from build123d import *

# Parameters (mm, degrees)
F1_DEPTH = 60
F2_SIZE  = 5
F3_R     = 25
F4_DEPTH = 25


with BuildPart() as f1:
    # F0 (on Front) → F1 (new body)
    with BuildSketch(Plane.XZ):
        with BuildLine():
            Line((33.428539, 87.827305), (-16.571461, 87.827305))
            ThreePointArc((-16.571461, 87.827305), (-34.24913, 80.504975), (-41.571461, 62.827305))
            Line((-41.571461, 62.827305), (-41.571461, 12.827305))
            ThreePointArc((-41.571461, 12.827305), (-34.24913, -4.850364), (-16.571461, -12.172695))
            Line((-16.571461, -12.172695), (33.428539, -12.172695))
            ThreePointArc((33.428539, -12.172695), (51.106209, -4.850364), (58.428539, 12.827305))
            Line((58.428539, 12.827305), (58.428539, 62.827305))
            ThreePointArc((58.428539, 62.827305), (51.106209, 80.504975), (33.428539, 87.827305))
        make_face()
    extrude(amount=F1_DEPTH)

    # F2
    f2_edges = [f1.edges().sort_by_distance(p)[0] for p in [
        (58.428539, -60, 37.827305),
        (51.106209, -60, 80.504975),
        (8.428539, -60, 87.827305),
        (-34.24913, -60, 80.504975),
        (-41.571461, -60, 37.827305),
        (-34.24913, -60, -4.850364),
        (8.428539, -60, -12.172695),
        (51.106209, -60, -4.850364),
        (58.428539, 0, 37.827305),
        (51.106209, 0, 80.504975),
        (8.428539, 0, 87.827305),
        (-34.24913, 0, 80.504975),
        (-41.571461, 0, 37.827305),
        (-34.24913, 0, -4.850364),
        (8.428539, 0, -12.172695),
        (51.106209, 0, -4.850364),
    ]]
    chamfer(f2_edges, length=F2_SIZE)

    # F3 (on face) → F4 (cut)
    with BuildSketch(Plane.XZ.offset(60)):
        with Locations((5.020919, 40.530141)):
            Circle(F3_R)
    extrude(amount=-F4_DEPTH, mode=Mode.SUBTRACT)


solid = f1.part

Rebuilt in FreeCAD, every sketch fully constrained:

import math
import FreeCAD as App
import Part
import Sketcher
from FreeCAD import Vector


def edges_at(feature, points):
    """Names of the edges that pass closest to the given points."""
    edges = feature.Shape.Edges
    near = lambda p: min(range(len(edges)), key=lambda i: edges[i].distToShape(Part.Vertex(*p))[0])
    return sorted({f"Edge{near(p) + 1}" for p in points})

doc = App.newDocument("Part")
body = doc.addObject("PartDesign::Body", "Body")

sketch1 = doc.addObject("Sketcher::SketchObject", "Sketch")
body.addObject(sketch1)
sketch1.AttachmentSupport = (doc.XZ_Plane, [""])
sketch1.MapMode = "FlatFace"
sketch1.addGeometry([
    Part.LineSegment(Vector(33, 88, 0), Vector(-17, 88, 0)),
    Part.ArcOfCircle(Part.Circle(Vector(-17, 63, 0), Vector(0, 0, 1), 25), math.radians(90), math.radians(180)),
    Part.LineSegment(Vector(-42, 63, 0), Vector(-42, 13, 0)),
    Part.ArcOfCircle(Part.Circle(Vector(-17, 13, 0), Vector(0, 0, 1), 25), math.radians(-180), math.radians(-90)),
    Part.LineSegment(Vector(-17, -12, 0), Vector(33, -12, 0)),
    Part.ArcOfCircle(Part.Circle(Vector(33, 13, 0), Vector(0, 0, 1), 25), math.radians(-90), math.radians(0)),
    Part.LineSegment(Vector(58, 13, 0), Vector(58, 63, 0)),
    Part.ArcOfCircle(Part.Circle(Vector(33, 63, 0), Vector(0, 0, 1), 25), math.radians(0), math.radians(90)),
], False)
sketch1.addConstraint([
    Sketcher.Constraint("Tangent", 0, 2, 1, 1),
    Sketcher.Constraint("Tangent", 1, 2, 2, 1),
    Sketcher.Constraint("Tangent", 2, 2, 3, 1),
    Sketcher.Constraint("Tangent", 3, 2, 4, 1),
    Sketcher.Constraint("Tangent", 4, 2, 5, 1),
    Sketcher.Constraint("Tangent", 5, 2, 6, 1),
    Sketcher.Constraint("Tangent", 6, 2, 7, 1),
    Sketcher.Constraint("Tangent", 7, 2, 0, 1),
    Sketcher.Constraint("Horizontal", 0),
    Sketcher.Constraint("Vertical", 2),
    Sketcher.Constraint("Horizontal", 4),
    Sketcher.Constraint("Vertical", 6),
    Sketcher.Constraint("Equal", 1, 3),
    Sketcher.Constraint("Equal", 3, 5),
    Sketcher.Constraint("Equal", 5, 7),
    Sketcher.Constraint("Equal", 4, 2),
    Sketcher.Constraint("Radius", 1, 25.0),
    Sketcher.Constraint("DistanceX", 0, 2, 0, 1, 50.0),
    Sketcher.Constraint("DistanceX", 1, 3, -1, 1, 16.571461),
    Sketcher.Constraint("DistanceY", -1, 1, 1, 3, 62.827305),
])
pad1 = doc.addObject("PartDesign::Pad", "Pad")
body.addObject(pad1)
pad1.Profile = sketch1
pad1.Length = 60
doc.recompute()

chamfer = doc.addObject("PartDesign::Chamfer", "Chamfer")
body.addObject(chamfer)
chamfer.Base = (pad1, edges_at(pad1, [
    (58.429, -60, 37.827),
    (51.106, -60, 80.505),
    (8.429, -60, 87.827),
    (-34.249, -60, 80.505),
    (-41.571, -60, 37.827),
    (-34.249, -60, -4.85),
    (8.429, -60, -12.173),
    (51.106, -60, -4.85),
    (58.429, 0, 37.827),
    (51.106, 0, 80.505),
    (8.429, 0, 87.827),
    (-34.249, 0, 80.505),
    (-41.571, 0, 37.827),
    (-34.249, 0, -4.85),
    (8.429, 0, -12.173),
    (51.106, 0, -4.85),
]))
chamfer.Size = 5

sketch2 = doc.addObject("Sketcher::SketchObject", "Sketch001")
body.addObject(sketch2)
sketch2.AttachmentSupport = (doc.XZ_Plane, [""])
sketch2.MapMode = "FlatFace"
sketch2.AttachmentOffset = App.Placement(Vector(0, 0, 60), App.Rotation())
sketch2.addGeometry(Part.Circle(Vector(5, 41, 0), Vector(0, 0, 1), 25), False)
sketch2.addConstraint([
    Sketcher.Constraint("Diameter", 0, 50.0),
    Sketcher.Constraint("DistanceX", -1, 1, 0, 3, 5.020919),
    Sketcher.Constraint("DistanceY", -1, 1, 0, 3, 40.530141),
])
pocket1 = doc.addObject("PartDesign::Pocket", "Pocket")
body.addObject(pocket1)
pocket1.Profile = sketch2
pocket1.Length = 25

doc.recompute()
